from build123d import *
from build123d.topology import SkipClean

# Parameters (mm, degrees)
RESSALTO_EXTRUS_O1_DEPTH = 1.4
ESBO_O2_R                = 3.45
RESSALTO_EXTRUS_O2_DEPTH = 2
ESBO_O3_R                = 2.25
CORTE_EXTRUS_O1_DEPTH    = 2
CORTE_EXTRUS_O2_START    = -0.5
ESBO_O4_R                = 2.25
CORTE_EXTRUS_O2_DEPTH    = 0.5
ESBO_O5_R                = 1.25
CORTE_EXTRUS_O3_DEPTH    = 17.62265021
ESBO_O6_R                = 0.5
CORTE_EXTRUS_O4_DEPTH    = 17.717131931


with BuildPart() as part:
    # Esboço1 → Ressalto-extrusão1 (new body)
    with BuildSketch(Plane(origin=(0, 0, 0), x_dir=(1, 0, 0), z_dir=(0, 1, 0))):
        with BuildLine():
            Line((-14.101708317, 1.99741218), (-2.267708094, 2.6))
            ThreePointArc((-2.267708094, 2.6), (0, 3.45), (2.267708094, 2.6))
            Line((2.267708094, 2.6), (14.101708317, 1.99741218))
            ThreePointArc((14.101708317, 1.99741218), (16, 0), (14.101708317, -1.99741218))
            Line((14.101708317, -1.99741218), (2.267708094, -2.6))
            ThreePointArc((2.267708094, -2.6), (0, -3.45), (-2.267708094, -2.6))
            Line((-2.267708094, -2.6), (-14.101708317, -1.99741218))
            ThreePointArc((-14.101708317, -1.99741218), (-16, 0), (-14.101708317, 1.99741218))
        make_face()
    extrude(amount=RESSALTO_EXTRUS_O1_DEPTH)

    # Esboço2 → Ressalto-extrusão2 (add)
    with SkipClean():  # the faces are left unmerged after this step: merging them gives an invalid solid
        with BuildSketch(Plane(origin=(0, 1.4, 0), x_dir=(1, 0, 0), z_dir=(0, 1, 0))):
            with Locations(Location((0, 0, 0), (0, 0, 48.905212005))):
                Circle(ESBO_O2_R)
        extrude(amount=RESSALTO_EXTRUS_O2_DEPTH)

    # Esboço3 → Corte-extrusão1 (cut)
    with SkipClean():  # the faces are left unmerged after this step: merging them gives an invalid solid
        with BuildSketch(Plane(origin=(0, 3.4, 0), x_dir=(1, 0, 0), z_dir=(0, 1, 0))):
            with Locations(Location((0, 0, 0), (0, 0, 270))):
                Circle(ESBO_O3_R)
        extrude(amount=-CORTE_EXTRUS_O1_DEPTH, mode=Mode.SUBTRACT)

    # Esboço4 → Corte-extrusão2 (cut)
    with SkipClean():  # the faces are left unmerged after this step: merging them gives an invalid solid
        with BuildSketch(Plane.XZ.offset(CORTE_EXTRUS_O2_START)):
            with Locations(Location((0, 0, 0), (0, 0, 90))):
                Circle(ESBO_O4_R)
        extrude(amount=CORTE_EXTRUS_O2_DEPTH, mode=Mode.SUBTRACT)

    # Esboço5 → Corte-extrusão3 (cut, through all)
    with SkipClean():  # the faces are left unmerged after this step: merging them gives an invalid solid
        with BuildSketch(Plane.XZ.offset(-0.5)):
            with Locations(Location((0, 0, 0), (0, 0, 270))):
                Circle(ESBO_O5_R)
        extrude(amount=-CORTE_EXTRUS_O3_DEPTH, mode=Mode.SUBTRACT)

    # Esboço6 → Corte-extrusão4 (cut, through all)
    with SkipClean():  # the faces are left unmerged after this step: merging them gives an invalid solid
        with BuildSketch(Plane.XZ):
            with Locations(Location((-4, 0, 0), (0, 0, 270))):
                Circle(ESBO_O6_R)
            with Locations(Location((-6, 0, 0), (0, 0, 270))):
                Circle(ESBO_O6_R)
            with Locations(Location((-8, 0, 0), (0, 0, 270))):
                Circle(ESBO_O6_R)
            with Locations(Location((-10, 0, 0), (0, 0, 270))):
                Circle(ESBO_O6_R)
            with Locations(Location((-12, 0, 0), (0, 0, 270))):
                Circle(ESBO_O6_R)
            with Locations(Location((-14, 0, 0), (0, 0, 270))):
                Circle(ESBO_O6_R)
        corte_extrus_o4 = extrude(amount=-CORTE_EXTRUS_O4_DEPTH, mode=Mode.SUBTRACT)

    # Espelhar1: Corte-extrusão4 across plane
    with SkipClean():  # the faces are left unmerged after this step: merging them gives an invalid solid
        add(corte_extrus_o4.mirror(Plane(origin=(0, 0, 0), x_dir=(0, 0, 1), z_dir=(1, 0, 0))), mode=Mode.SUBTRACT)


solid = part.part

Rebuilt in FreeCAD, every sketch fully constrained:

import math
import FreeCAD as App
import Part
import Sketcher
Q = App.Units.Quantity

doc = App.newDocument("Part")
body = doc.addObject("PartDesign::Body", "Body")

sketch1 = body.newObject("Sketcher::SketchObject", "Sketch")
sketch1.AttachmentSupport = (doc.getObject("XZ_Plane"), [""])
sketch1.MapMode = "FlatFace"
sketch1.addGeometry(Part.LineSegment(App.Vector(-2.3, -2.6, 0), App.Vector(-14.1, -2, 0)), False)
sketch1.addGeometry(Part.ArcOfCircle(Part.Circle(App.Vector(-14, 0, 0), App.Vector(0, 0, 1), 2), math.radians(93), math.radians(267)), False)
sketch1.addGeometry(Part.LineSegment(App.Vector(-14.1, 2, 0), App.Vector(-2.3, 2.6, 0)), False)
sketch1.addGeometry(Part.ArcOfCircle(Part.Circle(App.Vector(0, 0, 0), App.Vector(0, 0, 1), 3.5), math.radians(49), math.radians(131)), False)
sketch1.addGeometry(Part.LineSegment(App.Vector(2.3, 2.6, 0), App.Vector(14.1, 2, 0)), False)
sketch1.addGeometry(Part.ArcOfCircle(Part.Circle(App.Vector(14, 0, 0), App.Vector(0, 0, 1), 2), math.radians(-87), math.radians(87)), False)
sketch1.addGeometry(Part.LineSegment(App.Vector(14.1, -2, 0), App.Vector(2.3, -2.6, 0)), False)
sketch1.addGeometry(Part.ArcOfCircle(Part.Circle(App.Vector(0, 0, 0), App.Vector(0, 0, 1), 3.5), math.radians(-131), math.radians(-49)), False)
sketch1.addConstraint(Sketcher.Constraint("Tangent", 0, 2, 1, 2))
sketch1.addConstraint(Sketcher.Constraint("Tangent", 1, 1, 2, 1))
sketch1.addConstraint(Sketcher.Constraint("Coincident", 2, 2, 3, 2))
sketch1.addConstraint(Sketcher.Constraint("Coincident", 3, 1, 4, 1))
sketch1.addConstraint(Sketcher.Constraint("Tangent", 4, 2, 5, 2))
sketch1.addConstraint(Sketcher.Constraint("Tangent", 5, 1, 6, 1))
sketch1.addConstraint(Sketcher.Constraint("Coincident", 6, 2, 7, 2))
sketch1.addConstraint(Sketcher.Constraint("Coincident", 7, 1, 0, 1))
sketch1.addConstraint(Sketcher.Constraint("Coincident", 3, 3, -1, 1))
sketch1.addConstraint(Sketcher.Constraint("Coincident", 7, 3, -1, 1))
sketch1.addConstraint(Sketcher.Constraint("Equal", 1, 5))
sketch1.addConstraint(Sketcher.Constraint("Equal", 3, 7))
sketch1.addConstraint(Sketcher.Constraint("Symmetric", 1, 3, 5, 3, -1, 1))
sketch1.addConstraint(Sketcher.Constraint("Symmetric", 1, 1, 4, 2, -2))
sketch1.addConstraint(Sketcher.Constraint("Parallel", 0, 4))
sketch1.addConstraint(Sketcher.Constraint("Parallel", 2, 6))
sketch1.addConstraint(Sketcher.Constraint("Radius", 1, Q("2 mm")))
sketch1.addConstraint(Sketcher.Constraint("Radius", 3, Q("3.45 mm")))
sketch1.addConstraint(Sketcher.Constraint("DistanceX", 1, 3, -1, 1, Q("14 mm")))
sketch1.addConstraint(Sketcher.Constraint("DistanceY", -1, 1, 2, 2, Q("2.6 mm")))
pad1 = body.newObject("PartDesign::Pad", "Pad")
pad1.Profile = sketch1
pad1.Length = 1.4
pad1.Reversed = True

sketch2 = body.newObject("Sketcher::SketchObject", "Sketch001")
sketch2.AttachmentSupport = (doc.getObject("XZ_Plane"), [""])
sketch2.MapMode = "FlatFace"
sketch2.AttachmentOffset = App.Placement(App.Vector(0, 0, -1.4), App.Rotation())
sketch2.addGeometry(Part.Circle(App.Vector(0, 0, 0), App.Vector(0, 0, 1), 3.5), False)
sketch2.addConstraint(Sketcher.Constraint("Coincident", 0, 3, -1, 1))
sketch2.addConstraint(Sketcher.Constraint("Diameter", 0, Q("6.9 mm")))
pad2 = body.newObject("PartDesign::Pad", "Pad001")
pad2.Profile = sketch2
pad2.Length = 2
pad2.Reversed = True

sketch3 = body.newObject("Sketcher::SketchObject", "Sketch002")
sketch3.AttachmentSupport = (doc.getObject("XZ_Plane"), [""])
sketch3.MapMode = "FlatFace"
sketch3.AttachmentOffset = App.Placement(App.Vector(0, 0, -3.4), App.Rotation())
sketch3.addGeometry(Part.Circle(App.Vector(0, 0, 0), App.Vector(0, 0, 1), 2.2), False)
sketch3.addConstraint(Sketcher.Constraint("Coincident", 0, 3, -1, 1))
sketch3.addConstraint(Sketcher.Constraint("Diameter", 0, Q("4.5 mm")))
pocket1 = body.newObject("PartDesign::Pocket", "Pocket")
pocket1.Profile = sketch3
pocket1.Length = 2
pocket1.Reversed = True

sketch4 = body.newObject("Sketcher::SketchObject", "Sketch003")
sketch4.AttachmentSupport = (doc.getObject("XZ_Plane"), [""])
sketch4.MapMode = "FlatFace"
sketch4.AttachmentOffset = App.Placement(App.Vector(0, 0, -0.5), App.Rotation())
sketch4.addGeometry(Part.Circle(App.Vector(0, 0, 0), App.Vector(0, 0, 1), 2.2), False)
sketch4.addConstraint(Sketcher.Constraint("Coincident", 0, 3, -1, 1))
sketch4.addConstraint(Sketcher.Constraint("Diameter", 0, Q("4.5 mm")))
pocket2 = body.newObject("PartDesign::Pocket", "Pocket001")
pocket2.Profile = sketch4
pocket2.Length = 0.5
pocket2.Reversed = True

sketch5 = body.newObject("Sketcher::SketchObject", "Sketch004")
sketch5.AttachmentSupport = (doc.getObject("XZ_Plane"), [""])
sketch5.MapMode = "FlatFace"
sketch5.AttachmentOffset = App.Placement(App.Vector(0, 0, -0.5), App.Rotation())
sketch5.addGeometry(Part.Circle(App.Vector(0, 0, 0), App.Vector(0, 0, 1), 1.2), False)
sketch5.addConstraint(Sketcher.Constraint("Coincident", 0, 3, -1, 1))
sketch5.addConstraint(Sketcher.Constraint("Diameter", 0, Q("2.5 mm")))
pocket3 = body.newObject("PartDesign::Pocket", "Pocket002")
pocket3.Profile = sketch5
pocket3.Type = "ThroughAll"

sketch6 = body.newObject("Sketcher::SketchObject", "Sketch005")
sketch6.AttachmentSupport = (doc.getObject("XZ_Plane"), [""])
sketch6.MapMode = "FlatFace"
sketch6.addGeometry(Part.Circle(App.Vector(-4, 0, 0), App.Vector(0, 0, 1), 0.5), False)
sketch6.addGeometry(Part.Circle(App.Vector(-6, 0, 0), App.Vector(0, 0, 1), 0.5), False)
sketch6.addGeometry(Part.Circle(App.Vector(-8, 0, 0), App.Vector(0, 0, 1), 0.5), False)
sketch6.addGeometry(Part.Circle(App.Vector(-10, 0, 0), App.Vector(0, 0, 1), 0.5), False)
sketch6.addGeometry(Part.Circle(App.Vector(-12, 0, 0), App.Vector(0, 0, 1), 0.5), False)
sketch6.addGeometry(Part.Circle(App.Vector(-14, 0, 0), App.Vector(0, 0, 1), 0.5), False)
sketch6.addConstraint(Sketcher.Constraint("Equal", 0, 1))
sketch6.addConstraint(Sketcher.Constraint("Equal", 1, 2))
sketch6.addConstraint(Sketcher.Constraint("Equal", 2, 3))
sketch6.addConstraint(Sketcher.Constraint("Equal", 3, 4))
sketch6.addConstraint(Sketcher.Constraint("Equal", 4, 5))
sketch6.addConstraint(Sketcher.Constraint("PointOnObject", 0, 3, -1))
sketch6.addConstraint(Sketcher.Constraint("PointOnObject", 1, 3, -1))
sketch6.addConstraint(Sketcher.Constraint("PointOnObject", 2, 3, -1))
sketch6.addConstraint(Sketcher.Constraint("PointOnObject", 3, 3, -1))
sketch6.addConstraint(Sketcher.Constraint("PointOnObject", 4, 3, -1))
sketch6.addConstraint(Sketcher.Constraint("PointOnObject", 5, 3, -1))
sketch6.addConstraint(Sketcher.Constraint("Diameter", 0, Q("1 mm")))
sketch6.addConstraint(Sketcher.Constraint("DistanceX", 0, 3, -1, 1, Q("4 mm")))
sketch6.addConstraint(Sketcher.Constraint("DistanceX", 1, 3, -1, 1, Q("6 mm")))
sketch6.addConstraint(Sketcher.Constraint("DistanceX", 2, 3, -1, 1, Q("8 mm")))
sketch6.addConstraint(Sketcher.Constraint("DistanceX", 3, 3, -1, 1, Q("10 mm")))
sketch6.addConstraint(Sketcher.Constraint("DistanceX", 4, 3, -1, 1, Q("12 mm")))
sketch6.addConstraint(Sketcher.Constraint("DistanceX", 5, 3, -1, 1, Q("14 mm")))
pocket4 = body.newObject("PartDesign::Pocket", "Pocket003")
pocket4.Profile = sketch6
pocket4.Type = "ThroughAll"
doc.recompute()

mirrored = body.newObject("PartDesign::Mirrored", "Mirrored")
mirrored.Originals = [pocket4]
mirrored.MirrorPlane = (doc.getObject("YZ_Plane"), [""])
body.Tip = mirrored

doc.recompute()
